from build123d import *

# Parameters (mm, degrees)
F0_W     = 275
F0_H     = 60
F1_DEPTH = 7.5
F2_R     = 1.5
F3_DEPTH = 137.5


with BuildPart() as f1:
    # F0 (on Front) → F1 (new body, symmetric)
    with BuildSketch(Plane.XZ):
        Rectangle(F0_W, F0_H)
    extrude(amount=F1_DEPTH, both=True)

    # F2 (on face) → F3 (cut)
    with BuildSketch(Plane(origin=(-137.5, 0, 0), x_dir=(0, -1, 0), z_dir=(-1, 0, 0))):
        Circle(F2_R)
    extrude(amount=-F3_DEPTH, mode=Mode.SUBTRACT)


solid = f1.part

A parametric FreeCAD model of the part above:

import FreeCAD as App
import Part
import Sketcher
from FreeCAD import Vector
Q = App.Units.Quantity


def add_polygon(sketch, points):
    """Adds a closed chain of lines whose ends are joined by coincident constraints."""
    first, n = sketch.GeometryCount, len(points)
    for a, b in zip(points, points[1:] + points[:1]):
        sketch.addGeometry(Part.LineSegment(App.Vector(*a, 0), App.Vector(*b, 0)), False)
    for i in range(n):
        sketch.addConstraint(Sketcher.Constraint("Coincident", first + i, 2, first + (i + 1) % n, 1))

doc = App.newDocument("Part")
body = doc.addObject("PartDesign::Body", "Body")

# Sketch on XZ plane
sketch1 = body.newObject("Sketcher::SketchObject", "Sketch")
sketch1.AttachmentSupport = (doc.getObject("XZ_Plane"), [""])
sketch1.MapMode = "FlatFace"
add_polygon(sketch1, [(-138, 30), (-138, -30), (138, -30), (138, 30)])  # lines 0-3
sketch1.addConstraint([
    Sketcher.Constraint("Vertical", 0),
    Sketcher.Constraint("Horizontal", 1),
    Sketcher.Constraint("Vertical", 2),
    Sketcher.Constraint("Horizontal", 3),
    Sketcher.Constraint("Symmetric", 0, 2, 2, 2, -1, 1),
    Sketcher.Constraint("DistanceX", 1, 1, 1, 2, Q("275 mm")),
    Sketcher.Constraint("DistanceY", 0, 2, 0, 1, Q("60 mm")),
])
pad1 = body.newObject("PartDesign::Pad", "Pad")
pad1.Profile = sketch1
pad1.Length = 15
pad1.Midplane = True

# Sketch on YZ plane
sketch2 = body.newObject("Sketcher::SketchObject", "Sketch001")
sketch2.AttachmentSupport = (doc.getObject("YZ_Plane"), [""])
sketch2.MapMode = "FlatFace"
sketch2.AttachmentOffset = App.Placement(Vector(0, 0, -137.5), App.Rotation())
sketch2.addGeometry(Part.Circle(Vector(0, 0, 0), Vector(0, 0, 1), 1.5), False)
sketch2.addConstraint([
    Sketcher.Constraint("Coincident", 0, 3, -1, 1),
    Sketcher.Constraint("Diameter", 0, Q("3 mm")),
])
pocket1 = body.newObject("PartDesign::Pocket", "Pocket")
pocket1.Profile = sketch2
pocket1.Length = 137.5
pocket1.Reversed = True

doc.recompute()
